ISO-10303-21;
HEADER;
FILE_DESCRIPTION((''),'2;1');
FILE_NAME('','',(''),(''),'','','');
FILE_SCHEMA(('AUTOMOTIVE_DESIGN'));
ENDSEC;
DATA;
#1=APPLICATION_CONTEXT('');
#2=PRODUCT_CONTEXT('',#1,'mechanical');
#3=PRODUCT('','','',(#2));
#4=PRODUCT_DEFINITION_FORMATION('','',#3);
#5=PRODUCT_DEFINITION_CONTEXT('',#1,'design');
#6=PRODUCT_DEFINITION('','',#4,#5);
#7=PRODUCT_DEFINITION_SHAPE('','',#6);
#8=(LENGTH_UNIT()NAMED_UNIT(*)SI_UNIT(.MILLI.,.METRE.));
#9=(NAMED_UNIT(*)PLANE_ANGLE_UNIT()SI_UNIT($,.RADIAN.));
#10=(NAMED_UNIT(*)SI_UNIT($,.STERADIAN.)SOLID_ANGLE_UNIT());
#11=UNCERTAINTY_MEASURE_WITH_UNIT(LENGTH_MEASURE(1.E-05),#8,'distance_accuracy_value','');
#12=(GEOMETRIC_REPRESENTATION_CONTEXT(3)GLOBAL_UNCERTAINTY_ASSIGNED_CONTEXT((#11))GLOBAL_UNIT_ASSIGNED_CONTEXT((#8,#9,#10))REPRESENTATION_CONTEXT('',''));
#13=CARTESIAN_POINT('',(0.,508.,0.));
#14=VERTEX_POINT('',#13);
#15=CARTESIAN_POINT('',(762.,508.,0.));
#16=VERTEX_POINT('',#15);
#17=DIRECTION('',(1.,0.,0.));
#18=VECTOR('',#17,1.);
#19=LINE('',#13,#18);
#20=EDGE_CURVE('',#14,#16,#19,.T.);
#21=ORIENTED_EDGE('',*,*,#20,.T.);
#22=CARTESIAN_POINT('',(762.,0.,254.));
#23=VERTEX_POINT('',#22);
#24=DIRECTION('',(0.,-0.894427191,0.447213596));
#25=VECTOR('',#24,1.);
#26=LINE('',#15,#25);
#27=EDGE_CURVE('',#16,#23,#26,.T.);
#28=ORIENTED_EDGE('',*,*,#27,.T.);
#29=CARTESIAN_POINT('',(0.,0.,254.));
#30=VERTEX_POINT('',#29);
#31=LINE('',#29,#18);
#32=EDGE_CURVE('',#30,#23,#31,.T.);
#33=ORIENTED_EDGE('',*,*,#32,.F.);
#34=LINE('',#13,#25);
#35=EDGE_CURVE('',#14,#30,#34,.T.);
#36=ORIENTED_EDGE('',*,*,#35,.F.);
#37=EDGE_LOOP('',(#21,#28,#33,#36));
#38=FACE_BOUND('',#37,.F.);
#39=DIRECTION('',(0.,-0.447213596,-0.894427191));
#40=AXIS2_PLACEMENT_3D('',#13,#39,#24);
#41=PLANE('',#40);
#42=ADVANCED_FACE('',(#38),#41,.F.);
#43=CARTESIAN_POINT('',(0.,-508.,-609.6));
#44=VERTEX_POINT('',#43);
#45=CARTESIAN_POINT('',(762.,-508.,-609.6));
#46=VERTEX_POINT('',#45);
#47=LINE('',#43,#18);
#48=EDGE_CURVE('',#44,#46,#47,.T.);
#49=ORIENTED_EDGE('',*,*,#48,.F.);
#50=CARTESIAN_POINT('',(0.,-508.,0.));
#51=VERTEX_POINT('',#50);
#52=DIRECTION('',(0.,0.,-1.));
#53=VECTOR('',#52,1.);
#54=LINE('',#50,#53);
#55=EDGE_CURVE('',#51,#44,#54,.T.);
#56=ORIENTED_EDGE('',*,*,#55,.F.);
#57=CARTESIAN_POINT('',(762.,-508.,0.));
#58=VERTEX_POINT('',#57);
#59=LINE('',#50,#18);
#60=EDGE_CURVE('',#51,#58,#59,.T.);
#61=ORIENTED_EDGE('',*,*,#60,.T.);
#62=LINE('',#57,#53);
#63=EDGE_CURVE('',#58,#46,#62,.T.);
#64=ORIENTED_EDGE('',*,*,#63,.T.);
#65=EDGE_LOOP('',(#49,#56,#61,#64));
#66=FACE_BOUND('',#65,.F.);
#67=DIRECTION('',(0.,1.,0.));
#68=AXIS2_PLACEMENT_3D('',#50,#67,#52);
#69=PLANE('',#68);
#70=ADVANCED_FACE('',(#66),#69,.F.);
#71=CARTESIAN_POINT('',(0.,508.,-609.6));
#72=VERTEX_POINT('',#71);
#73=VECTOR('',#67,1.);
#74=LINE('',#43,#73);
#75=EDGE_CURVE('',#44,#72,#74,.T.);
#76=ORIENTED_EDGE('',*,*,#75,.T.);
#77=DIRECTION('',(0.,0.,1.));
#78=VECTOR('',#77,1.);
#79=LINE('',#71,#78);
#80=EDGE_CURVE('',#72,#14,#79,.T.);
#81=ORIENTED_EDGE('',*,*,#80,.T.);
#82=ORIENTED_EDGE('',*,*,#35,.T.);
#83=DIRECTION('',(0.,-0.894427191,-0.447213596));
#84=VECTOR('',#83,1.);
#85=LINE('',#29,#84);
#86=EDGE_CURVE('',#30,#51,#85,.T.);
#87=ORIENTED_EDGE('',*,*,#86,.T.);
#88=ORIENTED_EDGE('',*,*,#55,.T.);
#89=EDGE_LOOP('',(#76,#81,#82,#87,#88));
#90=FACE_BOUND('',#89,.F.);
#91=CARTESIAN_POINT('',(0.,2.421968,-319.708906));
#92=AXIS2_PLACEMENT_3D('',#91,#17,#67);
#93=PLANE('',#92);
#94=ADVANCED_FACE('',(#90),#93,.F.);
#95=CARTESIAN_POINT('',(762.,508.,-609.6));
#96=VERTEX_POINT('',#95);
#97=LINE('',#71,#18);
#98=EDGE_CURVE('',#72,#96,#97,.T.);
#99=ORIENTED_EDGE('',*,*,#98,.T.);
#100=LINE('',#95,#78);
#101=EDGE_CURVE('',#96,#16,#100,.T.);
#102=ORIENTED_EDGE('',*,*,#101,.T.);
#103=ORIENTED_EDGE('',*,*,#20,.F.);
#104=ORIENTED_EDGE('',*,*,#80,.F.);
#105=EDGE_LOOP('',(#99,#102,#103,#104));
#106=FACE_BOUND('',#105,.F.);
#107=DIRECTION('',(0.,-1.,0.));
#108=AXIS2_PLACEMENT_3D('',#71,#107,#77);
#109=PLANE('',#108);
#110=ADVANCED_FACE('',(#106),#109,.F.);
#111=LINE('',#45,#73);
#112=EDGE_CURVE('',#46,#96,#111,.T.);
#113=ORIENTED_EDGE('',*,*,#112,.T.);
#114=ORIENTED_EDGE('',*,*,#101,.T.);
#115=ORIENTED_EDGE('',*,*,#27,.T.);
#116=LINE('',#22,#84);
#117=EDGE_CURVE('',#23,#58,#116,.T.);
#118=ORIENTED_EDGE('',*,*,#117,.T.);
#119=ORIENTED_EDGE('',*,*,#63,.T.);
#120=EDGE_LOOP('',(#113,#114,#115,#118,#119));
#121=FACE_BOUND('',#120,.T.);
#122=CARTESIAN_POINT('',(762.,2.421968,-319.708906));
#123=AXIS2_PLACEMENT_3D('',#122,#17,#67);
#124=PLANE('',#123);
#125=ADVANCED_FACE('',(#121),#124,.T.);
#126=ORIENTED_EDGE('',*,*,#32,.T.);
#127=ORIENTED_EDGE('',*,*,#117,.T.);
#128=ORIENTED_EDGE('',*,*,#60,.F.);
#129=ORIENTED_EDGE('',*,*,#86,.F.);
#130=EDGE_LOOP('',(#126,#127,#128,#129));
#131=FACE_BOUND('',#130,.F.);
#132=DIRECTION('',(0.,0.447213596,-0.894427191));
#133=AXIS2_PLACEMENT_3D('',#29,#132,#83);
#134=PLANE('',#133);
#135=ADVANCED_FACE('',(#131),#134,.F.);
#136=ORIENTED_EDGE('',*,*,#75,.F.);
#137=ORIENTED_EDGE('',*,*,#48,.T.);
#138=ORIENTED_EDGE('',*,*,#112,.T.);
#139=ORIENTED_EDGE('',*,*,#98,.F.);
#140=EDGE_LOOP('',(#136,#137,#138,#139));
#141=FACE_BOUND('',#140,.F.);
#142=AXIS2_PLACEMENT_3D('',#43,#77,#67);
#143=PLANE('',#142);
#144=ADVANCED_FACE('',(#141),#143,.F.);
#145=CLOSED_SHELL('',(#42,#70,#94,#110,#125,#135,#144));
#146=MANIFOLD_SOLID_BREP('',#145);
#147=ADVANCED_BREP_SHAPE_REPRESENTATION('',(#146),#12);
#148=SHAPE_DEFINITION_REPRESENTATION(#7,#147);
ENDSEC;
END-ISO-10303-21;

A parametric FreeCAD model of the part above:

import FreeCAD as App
import Part
import Sketcher

V = App.Vector
Q = App.Units.Quantity


def add_polygon(sketch, points):
    """Adds a closed chain of lines whose ends are joined by coincident constraints."""
    first, n = sketch.GeometryCount, len(points)
    for a, b in zip(points, points[1:] + points[:1]):
        sketch.addGeometry(Part.LineSegment(App.Vector(*a, 0), App.Vector(*b, 0)), False)
    for i in range(n):
        sketch.addConstraint(Sketcher.Constraint("Coincident", first + i, 2, first + (i + 1) % n, 1))

doc = App.newDocument("Part")
body = doc.addObject("PartDesign::Body", "Body")

sketch1 = doc.addObject("Sketcher::SketchObject", "Sketch")
body.addObject(sketch1)
sketch1.AttachmentSupport = (doc.YZ_Plane, [""])
sketch1.MapMode = "FlatFace"
add_polygon(sketch1, [(0, 254), (-508, 0), (-508, -610), (508, -610), (508, 0)])
sketch1.addConstraint([
    Sketcher.Constraint("Vertical", 1),
    Sketcher.Constraint("Horizontal", 2),
    Sketcher.Constraint("Vertical", 3),
    Sketcher.Constraint("Symmetric", 0, 2, 3, 2, -1, 1),
    Sketcher.Constraint("PointOnObject", 0, 2, -1),
    Sketcher.Constraint("PointOnObject", 4, 2, -2),
    Sketcher.Constraint("DistanceX", 2, 1, 2, 2, Q("40 in")),
    Sketcher.Constraint("DistanceY", 1, 2, 1, 1, Q("24 in")),
    Sketcher.Constraint("DistanceY", -1, 1, 4, 2, Q("10 in")),
])
pad1 = doc.addObject("PartDesign::Pad", "Pad")
body.addObject(pad1)
pad1.Profile = sketch1
pad1.Length = Q("30 in")

doc.recompute()
